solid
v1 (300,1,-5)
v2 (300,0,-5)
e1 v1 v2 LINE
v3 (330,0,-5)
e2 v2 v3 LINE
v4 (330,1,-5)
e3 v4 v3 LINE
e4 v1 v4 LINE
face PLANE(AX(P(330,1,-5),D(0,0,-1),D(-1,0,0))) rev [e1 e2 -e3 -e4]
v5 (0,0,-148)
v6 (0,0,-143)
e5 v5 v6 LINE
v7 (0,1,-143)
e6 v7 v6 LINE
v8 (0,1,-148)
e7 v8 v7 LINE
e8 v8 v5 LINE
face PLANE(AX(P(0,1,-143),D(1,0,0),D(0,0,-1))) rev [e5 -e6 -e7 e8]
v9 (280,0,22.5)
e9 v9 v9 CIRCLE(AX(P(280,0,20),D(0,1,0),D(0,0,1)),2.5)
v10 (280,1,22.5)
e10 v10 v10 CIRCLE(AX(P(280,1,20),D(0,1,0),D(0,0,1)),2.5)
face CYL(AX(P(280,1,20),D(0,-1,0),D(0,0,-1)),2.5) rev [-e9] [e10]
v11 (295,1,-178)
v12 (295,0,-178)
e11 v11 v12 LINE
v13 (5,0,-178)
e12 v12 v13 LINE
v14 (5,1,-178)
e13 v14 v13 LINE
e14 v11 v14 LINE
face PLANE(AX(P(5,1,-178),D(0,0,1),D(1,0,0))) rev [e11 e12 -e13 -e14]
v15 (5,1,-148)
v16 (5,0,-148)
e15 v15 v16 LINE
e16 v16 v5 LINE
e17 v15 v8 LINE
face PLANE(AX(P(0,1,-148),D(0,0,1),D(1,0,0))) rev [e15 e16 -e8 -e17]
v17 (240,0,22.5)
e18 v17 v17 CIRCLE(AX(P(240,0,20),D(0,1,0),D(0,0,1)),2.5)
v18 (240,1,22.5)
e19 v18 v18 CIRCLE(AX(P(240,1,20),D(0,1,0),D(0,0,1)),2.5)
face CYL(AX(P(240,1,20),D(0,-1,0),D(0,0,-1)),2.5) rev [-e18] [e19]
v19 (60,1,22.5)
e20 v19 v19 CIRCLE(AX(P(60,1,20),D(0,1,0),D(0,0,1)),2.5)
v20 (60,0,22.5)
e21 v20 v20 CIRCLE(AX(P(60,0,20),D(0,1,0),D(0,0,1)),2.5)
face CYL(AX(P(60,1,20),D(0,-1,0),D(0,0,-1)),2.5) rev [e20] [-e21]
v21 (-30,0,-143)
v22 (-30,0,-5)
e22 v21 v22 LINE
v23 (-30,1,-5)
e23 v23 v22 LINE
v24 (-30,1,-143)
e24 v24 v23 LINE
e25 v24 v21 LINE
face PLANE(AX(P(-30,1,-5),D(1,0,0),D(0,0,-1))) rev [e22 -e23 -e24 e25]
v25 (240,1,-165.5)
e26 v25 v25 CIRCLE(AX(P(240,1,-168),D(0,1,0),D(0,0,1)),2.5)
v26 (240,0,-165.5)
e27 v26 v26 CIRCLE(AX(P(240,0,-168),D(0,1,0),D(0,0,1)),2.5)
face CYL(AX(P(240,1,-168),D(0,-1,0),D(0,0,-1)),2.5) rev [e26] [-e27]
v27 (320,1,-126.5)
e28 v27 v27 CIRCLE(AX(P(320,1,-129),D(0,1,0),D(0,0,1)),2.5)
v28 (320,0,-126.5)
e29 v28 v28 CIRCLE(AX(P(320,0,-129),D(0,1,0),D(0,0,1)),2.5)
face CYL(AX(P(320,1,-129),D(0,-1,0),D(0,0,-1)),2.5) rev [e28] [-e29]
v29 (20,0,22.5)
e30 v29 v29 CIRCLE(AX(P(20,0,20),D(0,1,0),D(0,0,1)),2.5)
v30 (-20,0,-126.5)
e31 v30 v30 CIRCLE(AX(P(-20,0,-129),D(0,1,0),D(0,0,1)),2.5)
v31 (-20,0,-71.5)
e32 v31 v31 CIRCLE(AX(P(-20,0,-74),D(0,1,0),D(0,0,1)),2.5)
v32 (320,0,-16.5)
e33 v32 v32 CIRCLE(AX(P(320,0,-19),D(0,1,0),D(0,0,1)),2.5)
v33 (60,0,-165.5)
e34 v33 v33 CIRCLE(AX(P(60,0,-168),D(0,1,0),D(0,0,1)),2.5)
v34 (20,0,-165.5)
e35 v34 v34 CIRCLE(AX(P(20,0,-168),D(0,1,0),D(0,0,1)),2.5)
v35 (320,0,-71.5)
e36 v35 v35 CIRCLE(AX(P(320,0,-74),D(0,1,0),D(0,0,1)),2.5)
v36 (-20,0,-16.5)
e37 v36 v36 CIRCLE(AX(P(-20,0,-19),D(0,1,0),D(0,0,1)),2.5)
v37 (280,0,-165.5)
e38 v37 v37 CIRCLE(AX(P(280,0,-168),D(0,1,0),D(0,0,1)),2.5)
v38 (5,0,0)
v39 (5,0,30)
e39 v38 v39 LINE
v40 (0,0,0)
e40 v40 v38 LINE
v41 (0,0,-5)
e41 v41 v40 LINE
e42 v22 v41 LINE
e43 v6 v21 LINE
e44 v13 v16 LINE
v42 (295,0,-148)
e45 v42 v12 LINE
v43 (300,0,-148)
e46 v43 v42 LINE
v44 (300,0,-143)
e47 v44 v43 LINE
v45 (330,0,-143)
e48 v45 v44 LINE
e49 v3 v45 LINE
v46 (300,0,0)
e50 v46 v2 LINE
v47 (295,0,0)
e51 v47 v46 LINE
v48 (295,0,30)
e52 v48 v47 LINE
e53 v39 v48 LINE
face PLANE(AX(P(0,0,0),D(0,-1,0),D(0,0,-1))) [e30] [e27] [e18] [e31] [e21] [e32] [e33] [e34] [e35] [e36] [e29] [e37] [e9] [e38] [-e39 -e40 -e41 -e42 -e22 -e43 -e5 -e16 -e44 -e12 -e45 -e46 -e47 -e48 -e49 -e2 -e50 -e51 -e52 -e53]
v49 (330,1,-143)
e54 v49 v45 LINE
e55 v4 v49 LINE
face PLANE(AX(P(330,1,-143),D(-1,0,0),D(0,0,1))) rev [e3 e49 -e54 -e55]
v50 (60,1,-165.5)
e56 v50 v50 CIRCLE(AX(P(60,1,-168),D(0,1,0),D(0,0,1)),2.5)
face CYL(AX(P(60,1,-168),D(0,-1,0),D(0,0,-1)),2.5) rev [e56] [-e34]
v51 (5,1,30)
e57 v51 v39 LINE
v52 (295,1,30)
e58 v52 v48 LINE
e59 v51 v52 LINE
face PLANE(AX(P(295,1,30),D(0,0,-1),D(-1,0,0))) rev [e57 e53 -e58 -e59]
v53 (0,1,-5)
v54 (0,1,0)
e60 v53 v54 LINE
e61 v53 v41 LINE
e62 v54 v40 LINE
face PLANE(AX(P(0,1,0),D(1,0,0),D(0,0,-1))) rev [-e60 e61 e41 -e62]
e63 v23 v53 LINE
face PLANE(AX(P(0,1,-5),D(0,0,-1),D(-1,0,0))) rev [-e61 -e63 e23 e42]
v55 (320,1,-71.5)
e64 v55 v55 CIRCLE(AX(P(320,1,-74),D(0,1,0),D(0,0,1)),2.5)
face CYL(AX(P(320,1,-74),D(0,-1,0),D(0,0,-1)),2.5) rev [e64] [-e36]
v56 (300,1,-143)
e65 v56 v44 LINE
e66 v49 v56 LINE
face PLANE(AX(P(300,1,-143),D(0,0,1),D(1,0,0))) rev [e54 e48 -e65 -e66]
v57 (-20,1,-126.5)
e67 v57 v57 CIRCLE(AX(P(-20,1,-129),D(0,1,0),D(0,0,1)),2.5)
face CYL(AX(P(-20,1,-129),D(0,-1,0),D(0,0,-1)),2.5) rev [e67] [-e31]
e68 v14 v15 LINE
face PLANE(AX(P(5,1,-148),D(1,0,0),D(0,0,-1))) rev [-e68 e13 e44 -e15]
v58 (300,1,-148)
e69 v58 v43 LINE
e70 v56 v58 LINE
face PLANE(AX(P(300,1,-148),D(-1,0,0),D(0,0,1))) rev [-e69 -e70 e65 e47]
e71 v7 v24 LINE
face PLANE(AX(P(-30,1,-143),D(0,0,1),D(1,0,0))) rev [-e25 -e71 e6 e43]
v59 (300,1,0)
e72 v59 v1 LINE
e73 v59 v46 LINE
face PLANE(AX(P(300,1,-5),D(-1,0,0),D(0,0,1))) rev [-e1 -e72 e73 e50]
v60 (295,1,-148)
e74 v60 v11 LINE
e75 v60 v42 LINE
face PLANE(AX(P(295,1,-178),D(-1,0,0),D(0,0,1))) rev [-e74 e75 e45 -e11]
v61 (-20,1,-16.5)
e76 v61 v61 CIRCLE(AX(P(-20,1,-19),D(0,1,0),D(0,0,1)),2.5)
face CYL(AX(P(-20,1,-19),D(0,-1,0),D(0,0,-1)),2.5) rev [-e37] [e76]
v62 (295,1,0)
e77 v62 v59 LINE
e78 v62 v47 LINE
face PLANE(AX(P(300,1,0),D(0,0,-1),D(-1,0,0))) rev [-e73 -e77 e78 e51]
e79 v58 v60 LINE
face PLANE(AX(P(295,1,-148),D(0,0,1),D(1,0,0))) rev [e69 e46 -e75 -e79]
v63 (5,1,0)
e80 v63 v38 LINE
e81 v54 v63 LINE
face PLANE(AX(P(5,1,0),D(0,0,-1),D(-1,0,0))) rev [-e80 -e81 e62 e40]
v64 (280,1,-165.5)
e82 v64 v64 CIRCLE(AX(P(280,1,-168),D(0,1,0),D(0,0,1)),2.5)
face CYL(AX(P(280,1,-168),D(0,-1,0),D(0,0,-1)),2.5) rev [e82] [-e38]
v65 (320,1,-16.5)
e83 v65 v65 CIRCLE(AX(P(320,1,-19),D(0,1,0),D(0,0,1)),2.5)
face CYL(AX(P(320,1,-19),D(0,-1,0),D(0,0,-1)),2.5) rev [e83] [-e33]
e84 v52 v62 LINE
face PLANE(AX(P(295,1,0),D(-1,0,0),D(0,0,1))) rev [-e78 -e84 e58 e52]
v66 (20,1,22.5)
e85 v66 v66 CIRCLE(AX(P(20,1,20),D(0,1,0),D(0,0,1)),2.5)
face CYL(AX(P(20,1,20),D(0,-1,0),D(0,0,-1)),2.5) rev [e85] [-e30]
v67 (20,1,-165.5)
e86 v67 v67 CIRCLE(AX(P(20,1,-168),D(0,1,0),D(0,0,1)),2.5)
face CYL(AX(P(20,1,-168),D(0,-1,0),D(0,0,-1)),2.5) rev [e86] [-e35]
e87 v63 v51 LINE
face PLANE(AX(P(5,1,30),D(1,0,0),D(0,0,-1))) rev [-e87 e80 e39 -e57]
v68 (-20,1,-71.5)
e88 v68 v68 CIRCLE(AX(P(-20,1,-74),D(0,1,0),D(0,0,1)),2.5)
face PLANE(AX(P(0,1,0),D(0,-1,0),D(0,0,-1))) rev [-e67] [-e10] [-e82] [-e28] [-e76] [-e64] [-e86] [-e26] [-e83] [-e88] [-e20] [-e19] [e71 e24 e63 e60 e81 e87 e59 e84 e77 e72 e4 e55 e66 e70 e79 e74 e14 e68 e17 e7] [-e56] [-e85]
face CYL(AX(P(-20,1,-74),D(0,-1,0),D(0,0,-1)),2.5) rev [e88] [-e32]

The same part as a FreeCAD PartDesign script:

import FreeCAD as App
import Part
import Sketcher
from FreeCAD import Vector


def add_polygon(sketch, points):
    """Adds a closed chain of lines whose ends are joined by coincident constraints."""
    first, n = sketch.GeometryCount, len(points)
    for a, b in zip(points, points[1:] + points[:1]):
        sketch.addGeometry(Part.LineSegment(App.Vector(*a, 0), App.Vector(*b, 0)), False)
    for i in range(n):
        sketch.addConstraint(Sketcher.Constraint("Coincident", first + i, 2, first + (i + 1) % n, 1))

doc = App.newDocument("Part")
body = doc.addObject("PartDesign::Body", "Body")

sketch1 = body.newObject("Sketcher::SketchObject", "Sketch")
sketch1.AttachmentSupport = (doc.getObject("XZ_Plane"), [""])
sketch1.MapMode = "FlatFace"
add_polygon(sketch1, [(0, -5), (0, 0), (5, 0), (5, 30), (295, 30), (295, 0), (300, 0), (300, -5), (330, -5), (330, -143), (300, -143), (300, -148), (295, -148), (295, -178), (5, -178), (5, -148), (0, -148), (0, -143), (-30, -143), (-30, -5)])
sketch1.addGeometry(Part.Circle(Vector(280, 20, 0), Vector(0, 0, 1), 2.5), False)
sketch1.addGeometry(Part.Circle(Vector(240, 20, 0), Vector(0, 0, 1), 2.5), False)
sketch1.addGeometry(Part.Circle(Vector(320, -19, 0), Vector(0, 0, 1), 2.5), False)
sketch1.addGeometry(Part.Circle(Vector(60, 20, 0), Vector(0, 0, 1), 2.5), False)
sketch1.addGeometry(Part.Circle(Vector(20, 20, 0), Vector(0, 0, 1), 2.5), False)
sketch1.addGeometry(Part.Circle(Vector(-20, -19, 0), Vector(0, 0, 1), 2.5), False)
sketch1.addGeometry(Part.Circle(Vector(320, -74, 0), Vector(0, 0, 1), 2.5), False)
sketch1.addGeometry(Part.Circle(Vector(320, -129, 0), Vector(0, 0, 1), 2.5), False)
sketch1.addGeometry(Part.Circle(Vector(280, -168, 0), Vector(0, 0, 1), 2.5), False)
sketch1.addGeometry(Part.Circle(Vector(240, -168, 0), Vector(0, 0, 1), 2.5), False)
sketch1.addGeometry(Part.Circle(Vector(-20, -74, 0), Vector(0, 0, 1), 2.5), False)
sketch1.addGeometry(Part.Circle(Vector(-20, -129, 0), Vector(0, 0, 1), 2.5), False)
sketch1.addGeometry(Part.Circle(Vector(60, -168, 0), Vector(0, 0, 1), 2.5), False)
sketch1.addGeometry(Part.Circle(Vector(20, -168, 0), Vector(0, 0, 1), 2.5), False)
sketch1.addConstraint([
    Sketcher.Constraint("Vertical", 0),
    Sketcher.Constraint("Horizontal", 1),
    Sketcher.Constraint("Vertical", 2),
    Sketcher.Constraint("Horizontal", 3),
    Sketcher.Constraint("Vertical", 4),
    Sketcher.Constraint("Horizontal", 5),
    Sketcher.Constraint("Vertical", 6),
    Sketcher.Constraint("Horizontal", 7),
    Sketcher.Constraint("Vertical", 8),
    Sketcher.Constraint("Horizontal", 9),
    Sketcher.Constraint("Vertical", 10),
    Sketcher.Constraint("Horizontal", 11),
    Sketcher.Constraint("Vertical", 12),
    Sketcher.Constraint("Horizontal", 13),
    Sketcher.Constraint("Vertical", 14),
    Sketcher.Constraint("Horizontal", 15),
    Sketcher.Constraint("Vertical", 16),
    Sketcher.Constraint("Horizontal", 17),
    Sketcher.Constraint("Vertical", 18),
    Sketcher.Constraint("Horizontal", 19),
    Sketcher.Constraint("Coincident", 0, 2, -1, 1),
    Sketcher.Constraint("Equal", 20, 21),
    Sketcher.Constraint("Equal", 21, 22),
    Sketcher.Constraint("Equal", 22, 23),
    Sketcher.Constraint("Equal", 23, 24),
    Sketcher.Constraint("Equal", 24, 25),
    Sketcher.Constraint("Equal", 25, 26),
    Sketcher.Constraint("Equal", 26, 27),
    Sketcher.Constraint("Equal", 27, 28),
    Sketcher.Constraint("Equal", 28, 29),
    Sketcher.Constraint("Equal", 29, 30),
    Sketcher.Constraint("Equal", 30, 31),
    Sketcher.Constraint("Equal", 31, 32),
    Sketcher.Constraint("Equal", 32, 33),
    Sketcher.Constraint("PointOnObject", 4, 2, -1),
    Sketcher.Constraint("PointOnObject", 15, 2, -2),
    Sketcher.Constraint("Horizontal", 20, 3, 21, 3),
    Sketcher.Constraint("Horizontal", 21, 3, 23, 3),
    Sketcher.Constraint("Horizontal", 23, 3, 24, 3),
    Sketcher.Constraint("Horizontal", 22, 3, 25, 3),
    Sketcher.Constraint("Horizontal", 28, 3, 29, 3),
    Sketcher.Constraint("Horizontal", 26, 3, 30, 3),
    Sketcher.Constraint("Horizontal", 27, 3, 31, 3),
    Sketcher.Constraint("Horizontal", 29, 3, 32, 3),
    Sketcher.Constraint("Horizontal", 32, 3, 33, 3),
    Sketcher.Constraint("Horizontal", 11, 2, 14, 2),
    Sketcher.Constraint("Horizontal", 9, 2, 16, 2),
    Sketcher.Constraint("Horizontal", 7, 2, 18, 2),
    Sketcher.Constraint("Vertical", 22, 3, 26, 3),
    Sketcher.Constraint("Vertical", 26, 3, 27, 3),
    Sketcher.Constraint("Vertical", 20, 3, 28, 3),
    Sketcher.Constraint("Vertical", 21, 3, 29, 3),
    Sketcher.Constraint("Vertical", 25, 3, 30, 3),
    Sketcher.Constraint("Vertical", 30, 3, 31, 3),
    Sketcher.Constraint("Vertical", 23, 3, 32, 3),
    Sketcher.Constraint("Vertical", 24, 3, 33, 3),
    Sketcher.Constraint("Vertical", 6, 2, 9, 2),
    Sketcher.Constraint("Vertical", 4, 2, 11, 2),
    Sketcher.Constraint("Vertical", 2, 2, 13, 2),
    Sketcher.Constraint("Equal", 1, 5),
    Sketcher.Constraint("Equal", 9, 17),
    Sketcher.Constraint("Equal", 15, 0),
    Sketcher.Constraint("Equal", 19, 2),
    Sketcher.Constraint("Equal", 6, 10),
    Sketcher.Constraint("Equal", 4, 12),
    Sketcher.Constraint("Diameter", 20, 5.0),
    Sketcher.Constraint("DistanceX", 1, 1, 1, 2, 5.0),
    Sketcher.Constraint("DistanceX", 3, 1, 3, 2, 290.0),
    Sketcher.Constraint("DistanceX", 7, 1, 7, 2, 30.0),
    Sketcher.Constraint("DistanceY", 8, 2, 8, 1, 138.0),
    Sketcher.Constraint("DistanceX", -1, 1, 20, 3, 280.0),
    Sketcher.Constraint("DistanceY", -1, 1, 20, 3, 20.0),
    Sketcher.Constraint("DistanceX", -1, 1, 21, 3, 240.0),
    Sketcher.Constraint("DistanceX", -1, 1, 22, 3, 320.0),
    Sketcher.Constraint("DistanceY", 22, 3, -1, 1, 19.0),
    Sketcher.Constraint("DistanceX", -1, 1, 23, 3, 60.0),
    Sketcher.Constraint("DistanceX", -1, 1, 24, 3, 20.0),
    Sketcher.Constraint("DistanceX", 25, 3, -1, 1, 20.0),
    Sketcher.Constraint("DistanceY", 26, 3, -1, 1, 74.0),
    Sketcher.Constraint("DistanceY", 27, 3, -1, 1, 129.0),
    Sketcher.Constraint("DistanceY", 28, 3, -1, 1, 168.0),
])
pad1 = body.newObject("PartDesign::Pad", "Pad")
pad1.Profile = sketch1
pad1.Length = 1
pad1.Reversed = True

doc.recompute()
